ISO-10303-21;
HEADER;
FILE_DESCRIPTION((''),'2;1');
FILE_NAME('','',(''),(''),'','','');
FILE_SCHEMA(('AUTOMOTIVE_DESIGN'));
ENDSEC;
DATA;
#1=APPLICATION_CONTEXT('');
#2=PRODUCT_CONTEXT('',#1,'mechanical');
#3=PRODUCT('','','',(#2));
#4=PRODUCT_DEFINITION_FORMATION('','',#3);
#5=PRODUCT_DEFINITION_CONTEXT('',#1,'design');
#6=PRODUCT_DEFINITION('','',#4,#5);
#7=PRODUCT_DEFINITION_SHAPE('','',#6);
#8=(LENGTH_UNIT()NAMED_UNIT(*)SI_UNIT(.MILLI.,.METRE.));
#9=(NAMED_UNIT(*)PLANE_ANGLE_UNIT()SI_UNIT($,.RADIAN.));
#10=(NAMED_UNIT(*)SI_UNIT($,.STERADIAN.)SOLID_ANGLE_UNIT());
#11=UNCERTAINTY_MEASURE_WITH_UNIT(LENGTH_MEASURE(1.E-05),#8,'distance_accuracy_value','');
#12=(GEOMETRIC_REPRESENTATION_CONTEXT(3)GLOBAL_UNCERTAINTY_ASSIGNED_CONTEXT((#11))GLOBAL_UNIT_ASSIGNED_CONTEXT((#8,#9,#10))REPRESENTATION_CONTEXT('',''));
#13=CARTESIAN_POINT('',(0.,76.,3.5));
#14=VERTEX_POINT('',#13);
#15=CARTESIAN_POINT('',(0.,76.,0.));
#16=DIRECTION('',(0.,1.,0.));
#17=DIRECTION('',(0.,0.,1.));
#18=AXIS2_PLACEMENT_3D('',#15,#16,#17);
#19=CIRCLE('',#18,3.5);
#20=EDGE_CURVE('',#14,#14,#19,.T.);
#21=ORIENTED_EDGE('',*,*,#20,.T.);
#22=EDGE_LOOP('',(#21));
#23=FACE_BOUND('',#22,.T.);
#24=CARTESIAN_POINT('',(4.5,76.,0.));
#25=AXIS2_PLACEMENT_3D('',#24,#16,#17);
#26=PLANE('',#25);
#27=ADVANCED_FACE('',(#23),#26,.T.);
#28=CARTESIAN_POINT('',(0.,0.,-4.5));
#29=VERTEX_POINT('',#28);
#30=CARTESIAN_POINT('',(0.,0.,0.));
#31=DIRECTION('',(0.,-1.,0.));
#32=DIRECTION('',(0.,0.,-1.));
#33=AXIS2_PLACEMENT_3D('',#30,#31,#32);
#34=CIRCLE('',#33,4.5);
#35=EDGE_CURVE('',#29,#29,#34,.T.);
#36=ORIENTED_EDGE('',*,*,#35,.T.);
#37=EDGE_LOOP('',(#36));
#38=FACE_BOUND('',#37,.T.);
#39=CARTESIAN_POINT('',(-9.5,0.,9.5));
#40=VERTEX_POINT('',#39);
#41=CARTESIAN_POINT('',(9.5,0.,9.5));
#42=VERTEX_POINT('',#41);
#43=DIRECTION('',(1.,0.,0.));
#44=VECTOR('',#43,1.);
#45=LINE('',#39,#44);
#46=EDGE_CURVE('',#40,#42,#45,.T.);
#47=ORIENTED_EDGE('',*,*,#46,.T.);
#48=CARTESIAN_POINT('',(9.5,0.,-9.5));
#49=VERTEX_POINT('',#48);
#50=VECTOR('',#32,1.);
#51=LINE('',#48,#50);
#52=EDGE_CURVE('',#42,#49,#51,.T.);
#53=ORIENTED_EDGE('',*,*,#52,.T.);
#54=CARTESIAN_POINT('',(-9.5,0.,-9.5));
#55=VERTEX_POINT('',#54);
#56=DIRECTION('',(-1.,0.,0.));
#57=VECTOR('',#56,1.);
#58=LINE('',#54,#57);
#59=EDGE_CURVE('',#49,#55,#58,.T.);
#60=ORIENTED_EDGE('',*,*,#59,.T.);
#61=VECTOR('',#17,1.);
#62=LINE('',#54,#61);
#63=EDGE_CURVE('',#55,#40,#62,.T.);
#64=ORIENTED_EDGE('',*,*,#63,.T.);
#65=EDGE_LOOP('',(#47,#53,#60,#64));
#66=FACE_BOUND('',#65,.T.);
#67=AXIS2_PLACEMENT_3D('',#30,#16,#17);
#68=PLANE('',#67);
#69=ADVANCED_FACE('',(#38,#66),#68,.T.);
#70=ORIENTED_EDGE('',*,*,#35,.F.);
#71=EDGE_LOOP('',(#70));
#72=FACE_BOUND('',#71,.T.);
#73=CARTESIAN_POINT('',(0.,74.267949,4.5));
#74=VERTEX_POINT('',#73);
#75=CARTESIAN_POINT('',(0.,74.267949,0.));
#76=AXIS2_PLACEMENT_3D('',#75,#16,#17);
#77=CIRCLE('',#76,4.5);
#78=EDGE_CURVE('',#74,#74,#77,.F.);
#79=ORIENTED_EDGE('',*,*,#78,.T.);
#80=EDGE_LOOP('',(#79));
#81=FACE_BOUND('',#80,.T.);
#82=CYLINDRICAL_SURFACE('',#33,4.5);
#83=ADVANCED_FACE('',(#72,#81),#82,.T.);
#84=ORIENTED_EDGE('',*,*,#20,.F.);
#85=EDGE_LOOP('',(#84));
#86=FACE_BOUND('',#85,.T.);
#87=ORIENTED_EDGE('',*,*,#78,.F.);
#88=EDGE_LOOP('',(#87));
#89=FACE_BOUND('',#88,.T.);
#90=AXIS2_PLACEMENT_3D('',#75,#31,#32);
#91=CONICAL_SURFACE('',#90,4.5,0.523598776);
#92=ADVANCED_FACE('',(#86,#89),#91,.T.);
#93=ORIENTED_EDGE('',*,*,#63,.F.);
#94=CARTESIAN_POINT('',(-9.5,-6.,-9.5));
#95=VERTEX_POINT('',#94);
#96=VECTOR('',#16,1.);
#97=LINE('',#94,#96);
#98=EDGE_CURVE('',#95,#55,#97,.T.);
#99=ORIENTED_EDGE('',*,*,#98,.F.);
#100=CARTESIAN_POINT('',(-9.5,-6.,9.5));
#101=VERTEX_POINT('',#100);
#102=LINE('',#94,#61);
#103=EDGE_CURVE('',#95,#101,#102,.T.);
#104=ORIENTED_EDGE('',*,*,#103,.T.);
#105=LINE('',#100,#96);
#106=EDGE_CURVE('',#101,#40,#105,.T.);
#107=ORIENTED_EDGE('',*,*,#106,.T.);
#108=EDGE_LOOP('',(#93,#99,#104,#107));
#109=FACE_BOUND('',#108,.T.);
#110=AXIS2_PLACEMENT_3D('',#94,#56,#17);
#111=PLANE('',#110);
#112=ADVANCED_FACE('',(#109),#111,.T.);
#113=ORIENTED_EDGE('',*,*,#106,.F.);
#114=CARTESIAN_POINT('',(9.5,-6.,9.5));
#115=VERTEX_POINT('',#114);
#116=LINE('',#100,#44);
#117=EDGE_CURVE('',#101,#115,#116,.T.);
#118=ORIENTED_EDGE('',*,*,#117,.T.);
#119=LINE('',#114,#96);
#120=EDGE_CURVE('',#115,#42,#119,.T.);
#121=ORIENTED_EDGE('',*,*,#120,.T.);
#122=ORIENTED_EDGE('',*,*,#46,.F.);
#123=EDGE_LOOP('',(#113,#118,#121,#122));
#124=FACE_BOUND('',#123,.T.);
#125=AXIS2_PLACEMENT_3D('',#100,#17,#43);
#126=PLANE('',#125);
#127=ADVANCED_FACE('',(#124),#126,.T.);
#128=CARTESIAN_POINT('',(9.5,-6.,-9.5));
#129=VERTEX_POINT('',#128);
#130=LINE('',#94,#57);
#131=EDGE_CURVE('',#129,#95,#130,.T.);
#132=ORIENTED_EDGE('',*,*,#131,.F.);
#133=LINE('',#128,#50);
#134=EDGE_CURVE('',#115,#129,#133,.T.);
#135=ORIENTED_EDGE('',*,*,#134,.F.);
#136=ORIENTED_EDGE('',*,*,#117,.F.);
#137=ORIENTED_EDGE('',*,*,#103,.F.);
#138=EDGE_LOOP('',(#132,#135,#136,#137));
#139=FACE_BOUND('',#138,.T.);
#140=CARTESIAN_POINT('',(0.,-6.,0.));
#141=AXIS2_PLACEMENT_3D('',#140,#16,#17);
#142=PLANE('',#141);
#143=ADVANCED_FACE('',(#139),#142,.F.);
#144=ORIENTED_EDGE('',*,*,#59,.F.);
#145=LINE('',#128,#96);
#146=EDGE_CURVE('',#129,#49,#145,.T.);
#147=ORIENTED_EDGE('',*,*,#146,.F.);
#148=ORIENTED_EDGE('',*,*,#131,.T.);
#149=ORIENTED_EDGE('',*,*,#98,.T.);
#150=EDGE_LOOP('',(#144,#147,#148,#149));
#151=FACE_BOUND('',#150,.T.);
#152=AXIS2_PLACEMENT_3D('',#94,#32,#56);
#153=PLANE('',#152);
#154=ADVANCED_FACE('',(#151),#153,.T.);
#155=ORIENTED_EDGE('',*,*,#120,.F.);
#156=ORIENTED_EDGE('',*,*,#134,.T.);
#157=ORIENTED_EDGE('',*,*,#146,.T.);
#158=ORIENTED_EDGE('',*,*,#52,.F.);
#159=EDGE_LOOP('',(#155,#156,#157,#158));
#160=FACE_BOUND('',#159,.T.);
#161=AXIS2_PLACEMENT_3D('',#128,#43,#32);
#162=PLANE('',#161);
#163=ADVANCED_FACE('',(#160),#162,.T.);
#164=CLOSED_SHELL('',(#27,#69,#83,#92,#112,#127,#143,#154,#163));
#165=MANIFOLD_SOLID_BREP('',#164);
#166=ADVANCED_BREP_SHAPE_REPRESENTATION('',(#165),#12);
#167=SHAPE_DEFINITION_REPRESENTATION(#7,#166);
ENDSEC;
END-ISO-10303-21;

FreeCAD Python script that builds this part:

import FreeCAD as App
import Part
import Sketcher


def edges_at(feature, points):
    """Names of the edges that pass closest to the given points."""
    edges = feature.Shape.Edges
    near = lambda p: min(range(len(edges)), key=lambda i: edges[i].distToShape(Part.Vertex(*p))[0])
    return sorted({f"Edge{near(p) + 1}" for p in points})

doc = App.newDocument("Part")
body = doc.addObject("PartDesign::Body", "Body")

# Sketch on XY plane
sketch1 = body.newObject("Sketcher::SketchObject", "Sketch")
sketch1.AttachmentSupport = (doc.getObject("XY_Plane"), [""])
sketch1.MapMode = "FlatFace"
sketch1.addGeometry([
    Part.LineSegment(App.Vector(0, 76, 0), App.Vector(0, 0, 0)),
    Part.LineSegment(App.Vector(0, 0, 0), App.Vector(4.5, 0, 0)),
    Part.LineSegment(App.Vector(4.5, 0, 0), App.Vector(4.5, 76, 0)),
    Part.LineSegment(App.Vector(4.5, 76, 0), App.Vector(0, 76, 0)),
], False)
sketch1.addConstraint([
    Sketcher.Constraint("Coincident", 0, 2, 1, 1),
    Sketcher.Constraint("Coincident", 1, 2, 2, 1),
    Sketcher.Constraint("Coincident", 2, 2, 3, 1),
    Sketcher.Constraint("Coincident", 3, 2, 0, 1),
    Sketcher.Constraint("Vertical", 0),
    Sketcher.Constraint("Horizontal", 1),
    Sketcher.Constraint("Vertical", 2),
    Sketcher.Constraint("Horizontal", 3),
    Sketcher.Constraint("Coincident", 0, 2, -1, 1),
    Sketcher.Constraint("DistanceY", 0, 2, 0, 1, 76.0),
    Sketcher.Constraint("DistanceX", 1, 1, 1, 2, 4.5),
])
revolution = body.newObject("PartDesign::Revolution", "Revolution")
revolution.Profile = sketch1
revolution.ReferenceAxis = (sketch1, ["V_Axis"])
revolution.Angle = 360

# Sketch on XZ plane
sketch2 = body.newObject("Sketcher::SketchObject", "Sketch001")
sketch2.AttachmentSupport = (doc.getObject("XZ_Plane"), [""])
sketch2.MapMode = "FlatFace"
sketch2.addGeometry([
    Part.LineSegment(App.Vector(-10, -10, 0), App.Vector(-10, 10, 0)),
    Part.LineSegment(App.Vector(-10, 10, 0), App.Vector(10, 10, 0)),
    Part.LineSegment(App.Vector(10, 10, 0), App.Vector(10, -10, 0)),
    Part.LineSegment(App.Vector(10, -10, 0), App.Vector(-10, -10, 0)),
], False)
sketch2.addConstraint([
    Sketcher.Constraint("Coincident", 0, 2, 1, 1),
    Sketcher.Constraint("Coincident", 1, 2, 2, 1),
    Sketcher.Constraint("Coincident", 2, 2, 3, 1),
    Sketcher.Constraint("Coincident", 3, 2, 0, 1),
    Sketcher.Constraint("Vertical", 0),
    Sketcher.Constraint("Horizontal", 1),
    Sketcher.Constraint("Vertical", 2),
    Sketcher.Constraint("Horizontal", 3),
    Sketcher.Constraint("Symmetric", 0, 2, 2, 2, -1, 1),
    Sketcher.Constraint("Equal", 3, 0),
    Sketcher.Constraint("DistanceX", 1, 1, 1, 2, 19.0),
])
pad1 = body.newObject("PartDesign::Pad", "Pad")
pad1.Profile = sketch2
pad1.Length = 6
doc.recompute()

chamfer = body.newObject("PartDesign::Chamfer", "Chamfer")
chamfer.Base = (pad1, edges_at(pad1, [(0, 76, 4.5)]))
chamfer.ChamferType = "Two distances"
chamfer.Size = 1
chamfer.Size2 = 1.732051
chamfer.FlipDirection = True

doc.recompute()
